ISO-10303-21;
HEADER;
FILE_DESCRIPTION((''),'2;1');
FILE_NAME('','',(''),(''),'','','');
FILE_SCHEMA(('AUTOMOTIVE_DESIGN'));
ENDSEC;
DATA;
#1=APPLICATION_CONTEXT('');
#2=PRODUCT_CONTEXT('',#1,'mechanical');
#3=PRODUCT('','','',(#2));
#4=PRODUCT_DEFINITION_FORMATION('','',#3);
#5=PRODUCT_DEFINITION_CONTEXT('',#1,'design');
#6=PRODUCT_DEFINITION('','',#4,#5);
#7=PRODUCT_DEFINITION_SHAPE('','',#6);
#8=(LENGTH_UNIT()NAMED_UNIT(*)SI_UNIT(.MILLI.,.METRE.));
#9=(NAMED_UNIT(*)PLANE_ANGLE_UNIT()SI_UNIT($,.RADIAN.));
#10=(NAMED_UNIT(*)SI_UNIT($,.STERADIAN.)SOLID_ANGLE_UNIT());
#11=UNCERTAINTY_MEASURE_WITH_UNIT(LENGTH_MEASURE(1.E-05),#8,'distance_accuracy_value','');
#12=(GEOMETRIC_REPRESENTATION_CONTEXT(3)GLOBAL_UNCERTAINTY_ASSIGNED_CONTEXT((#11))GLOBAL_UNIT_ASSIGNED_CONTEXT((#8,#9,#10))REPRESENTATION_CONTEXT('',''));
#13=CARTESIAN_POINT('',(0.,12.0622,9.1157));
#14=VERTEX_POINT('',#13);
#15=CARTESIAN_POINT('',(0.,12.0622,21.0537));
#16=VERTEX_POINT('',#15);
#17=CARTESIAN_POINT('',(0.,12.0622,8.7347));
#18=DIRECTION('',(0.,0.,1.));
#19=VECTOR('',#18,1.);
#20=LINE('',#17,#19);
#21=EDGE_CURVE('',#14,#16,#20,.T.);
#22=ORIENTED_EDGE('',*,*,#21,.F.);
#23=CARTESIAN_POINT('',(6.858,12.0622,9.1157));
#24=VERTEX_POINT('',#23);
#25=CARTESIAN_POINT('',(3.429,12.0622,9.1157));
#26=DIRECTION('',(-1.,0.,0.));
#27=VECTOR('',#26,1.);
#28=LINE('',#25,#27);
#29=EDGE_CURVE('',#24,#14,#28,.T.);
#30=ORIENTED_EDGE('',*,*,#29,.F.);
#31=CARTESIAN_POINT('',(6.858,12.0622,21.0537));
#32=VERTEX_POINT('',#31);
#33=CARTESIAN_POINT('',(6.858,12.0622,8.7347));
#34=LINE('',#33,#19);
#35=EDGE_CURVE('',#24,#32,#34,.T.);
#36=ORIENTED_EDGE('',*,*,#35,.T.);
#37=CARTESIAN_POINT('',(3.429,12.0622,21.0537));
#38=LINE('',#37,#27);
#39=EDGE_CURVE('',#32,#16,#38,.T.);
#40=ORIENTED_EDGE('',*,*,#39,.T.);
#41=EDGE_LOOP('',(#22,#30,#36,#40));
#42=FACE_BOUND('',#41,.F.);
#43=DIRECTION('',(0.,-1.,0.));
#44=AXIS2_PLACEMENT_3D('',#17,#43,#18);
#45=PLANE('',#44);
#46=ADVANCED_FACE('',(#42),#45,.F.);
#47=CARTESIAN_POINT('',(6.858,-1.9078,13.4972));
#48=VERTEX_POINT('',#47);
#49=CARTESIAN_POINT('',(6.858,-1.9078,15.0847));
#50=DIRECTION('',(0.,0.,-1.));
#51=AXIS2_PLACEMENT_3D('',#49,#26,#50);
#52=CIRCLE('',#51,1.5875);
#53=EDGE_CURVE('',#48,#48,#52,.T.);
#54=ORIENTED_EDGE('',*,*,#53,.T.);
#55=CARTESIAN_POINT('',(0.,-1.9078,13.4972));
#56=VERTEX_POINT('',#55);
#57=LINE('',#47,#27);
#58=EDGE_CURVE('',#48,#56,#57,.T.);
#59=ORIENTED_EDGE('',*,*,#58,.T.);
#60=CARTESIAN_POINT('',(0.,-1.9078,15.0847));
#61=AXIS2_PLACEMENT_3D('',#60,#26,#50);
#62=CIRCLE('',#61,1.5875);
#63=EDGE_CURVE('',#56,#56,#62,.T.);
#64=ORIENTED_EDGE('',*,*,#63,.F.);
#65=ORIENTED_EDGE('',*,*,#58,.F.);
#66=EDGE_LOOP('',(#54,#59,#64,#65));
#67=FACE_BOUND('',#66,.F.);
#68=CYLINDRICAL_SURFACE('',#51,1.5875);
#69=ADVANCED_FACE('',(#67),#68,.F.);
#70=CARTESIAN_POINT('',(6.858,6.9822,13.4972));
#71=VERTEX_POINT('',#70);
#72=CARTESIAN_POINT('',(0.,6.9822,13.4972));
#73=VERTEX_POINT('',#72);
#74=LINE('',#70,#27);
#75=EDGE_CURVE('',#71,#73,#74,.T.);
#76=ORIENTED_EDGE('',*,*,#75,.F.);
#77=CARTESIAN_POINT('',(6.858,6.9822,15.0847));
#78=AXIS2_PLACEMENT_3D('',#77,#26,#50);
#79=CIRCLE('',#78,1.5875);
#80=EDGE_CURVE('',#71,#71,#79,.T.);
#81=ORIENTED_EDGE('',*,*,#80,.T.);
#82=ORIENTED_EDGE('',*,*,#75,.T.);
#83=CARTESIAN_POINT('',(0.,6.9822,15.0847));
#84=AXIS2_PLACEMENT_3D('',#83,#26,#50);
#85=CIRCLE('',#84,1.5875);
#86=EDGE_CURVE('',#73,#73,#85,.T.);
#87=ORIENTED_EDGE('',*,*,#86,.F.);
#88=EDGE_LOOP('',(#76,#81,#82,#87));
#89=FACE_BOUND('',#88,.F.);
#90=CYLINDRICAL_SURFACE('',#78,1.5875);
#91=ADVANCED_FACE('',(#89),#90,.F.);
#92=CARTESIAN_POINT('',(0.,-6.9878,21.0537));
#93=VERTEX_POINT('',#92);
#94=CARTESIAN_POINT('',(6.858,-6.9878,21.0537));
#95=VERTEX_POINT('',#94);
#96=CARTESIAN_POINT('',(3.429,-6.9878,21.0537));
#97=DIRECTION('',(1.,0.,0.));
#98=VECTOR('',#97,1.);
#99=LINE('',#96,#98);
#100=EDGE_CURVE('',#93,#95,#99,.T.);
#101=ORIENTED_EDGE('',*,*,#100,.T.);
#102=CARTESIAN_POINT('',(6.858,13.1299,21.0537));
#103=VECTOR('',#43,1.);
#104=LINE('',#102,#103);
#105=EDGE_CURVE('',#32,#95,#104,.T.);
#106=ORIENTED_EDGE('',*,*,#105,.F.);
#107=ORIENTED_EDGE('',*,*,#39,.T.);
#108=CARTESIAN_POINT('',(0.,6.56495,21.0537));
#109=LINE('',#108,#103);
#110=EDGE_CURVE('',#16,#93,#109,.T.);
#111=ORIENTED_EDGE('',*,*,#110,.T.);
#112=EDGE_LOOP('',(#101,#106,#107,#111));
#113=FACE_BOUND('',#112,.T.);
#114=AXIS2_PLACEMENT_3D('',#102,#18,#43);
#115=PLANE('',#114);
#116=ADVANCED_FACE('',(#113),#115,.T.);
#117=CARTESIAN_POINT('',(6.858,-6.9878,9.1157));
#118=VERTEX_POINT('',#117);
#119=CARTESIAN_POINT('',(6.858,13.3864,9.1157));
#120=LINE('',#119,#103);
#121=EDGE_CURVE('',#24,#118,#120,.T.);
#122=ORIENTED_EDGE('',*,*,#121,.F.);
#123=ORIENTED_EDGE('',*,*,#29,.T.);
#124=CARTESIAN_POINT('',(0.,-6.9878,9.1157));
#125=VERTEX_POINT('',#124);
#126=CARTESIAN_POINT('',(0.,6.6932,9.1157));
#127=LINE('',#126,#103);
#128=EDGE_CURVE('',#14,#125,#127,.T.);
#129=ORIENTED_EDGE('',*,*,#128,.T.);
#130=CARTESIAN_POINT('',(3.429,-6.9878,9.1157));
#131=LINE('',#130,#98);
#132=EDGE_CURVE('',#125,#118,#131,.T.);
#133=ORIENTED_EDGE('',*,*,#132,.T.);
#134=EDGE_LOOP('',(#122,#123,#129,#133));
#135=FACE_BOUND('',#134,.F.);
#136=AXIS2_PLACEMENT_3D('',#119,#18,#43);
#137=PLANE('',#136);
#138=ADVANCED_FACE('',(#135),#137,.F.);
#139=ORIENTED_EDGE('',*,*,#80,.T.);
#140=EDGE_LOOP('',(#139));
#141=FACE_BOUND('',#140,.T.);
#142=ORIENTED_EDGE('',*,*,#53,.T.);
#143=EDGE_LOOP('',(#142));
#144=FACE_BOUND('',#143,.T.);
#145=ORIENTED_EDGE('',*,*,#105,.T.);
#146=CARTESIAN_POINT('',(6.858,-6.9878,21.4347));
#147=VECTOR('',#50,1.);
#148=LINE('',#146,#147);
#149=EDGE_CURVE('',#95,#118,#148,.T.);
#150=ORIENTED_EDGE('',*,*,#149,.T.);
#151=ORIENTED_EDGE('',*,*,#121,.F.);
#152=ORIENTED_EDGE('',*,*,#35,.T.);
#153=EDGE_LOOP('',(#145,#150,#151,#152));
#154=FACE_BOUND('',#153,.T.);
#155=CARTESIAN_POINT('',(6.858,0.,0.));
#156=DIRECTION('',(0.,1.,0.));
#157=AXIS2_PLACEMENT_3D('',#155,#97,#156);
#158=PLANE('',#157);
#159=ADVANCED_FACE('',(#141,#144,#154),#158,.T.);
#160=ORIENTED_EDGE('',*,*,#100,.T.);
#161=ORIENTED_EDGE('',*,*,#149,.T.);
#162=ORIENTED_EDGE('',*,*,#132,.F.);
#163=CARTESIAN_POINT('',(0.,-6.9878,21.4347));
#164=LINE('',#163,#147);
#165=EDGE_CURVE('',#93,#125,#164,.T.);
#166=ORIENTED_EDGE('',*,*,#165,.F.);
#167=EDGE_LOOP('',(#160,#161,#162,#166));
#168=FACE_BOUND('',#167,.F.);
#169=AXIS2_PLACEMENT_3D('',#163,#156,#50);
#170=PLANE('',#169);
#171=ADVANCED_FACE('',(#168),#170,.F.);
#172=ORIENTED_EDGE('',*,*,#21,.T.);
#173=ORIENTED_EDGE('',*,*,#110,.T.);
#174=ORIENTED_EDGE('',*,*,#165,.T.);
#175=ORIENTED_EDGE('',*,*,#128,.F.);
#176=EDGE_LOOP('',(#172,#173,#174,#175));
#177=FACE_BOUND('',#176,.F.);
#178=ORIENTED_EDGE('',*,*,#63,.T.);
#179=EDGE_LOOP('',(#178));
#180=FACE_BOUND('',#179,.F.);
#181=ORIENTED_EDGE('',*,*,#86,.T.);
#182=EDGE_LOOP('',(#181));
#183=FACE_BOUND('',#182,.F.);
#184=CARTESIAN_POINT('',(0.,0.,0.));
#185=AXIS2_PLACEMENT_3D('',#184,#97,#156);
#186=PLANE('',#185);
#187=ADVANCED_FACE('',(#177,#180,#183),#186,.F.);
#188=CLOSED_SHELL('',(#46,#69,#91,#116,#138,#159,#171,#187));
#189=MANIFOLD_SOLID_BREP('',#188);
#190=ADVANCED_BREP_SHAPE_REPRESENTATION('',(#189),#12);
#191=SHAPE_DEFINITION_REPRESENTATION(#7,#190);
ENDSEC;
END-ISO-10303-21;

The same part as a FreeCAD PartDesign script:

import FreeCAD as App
import Part
import Sketcher
from FreeCAD import Vector
Q = App.Units.Quantity


def add_polygon(sketch, points):
    """Adds a closed chain of lines whose ends are joined by coincident constraints."""
    first, n = sketch.GeometryCount, len(points)
    for a, b in zip(points, points[1:] + points[:1]):
        sketch.addGeometry(Part.LineSegment(App.Vector(*a, 0), App.Vector(*b, 0)), False)
    for i in range(n):
        sketch.addConstraint(Sketcher.Constraint("Coincident", first + i, 2, first + (i + 1) % n, 1))

doc = App.newDocument("Part")
body = doc.addObject("PartDesign::Body", "Body")

# Sketch on YZ plane
sketch1 = body.newObject("Sketcher::SketchObject", "Sketch")
sketch1.AttachmentSupport = (doc.getObject("YZ_Plane"), [""])
sketch1.MapMode = "FlatFace"
add_polygon(sketch1, [(12, 9), (12, 21), (-7, 21), (-7, 9)])  # lines 0-3
sketch1.addConstraint([
    Sketcher.Constraint("Vertical", 0),
    Sketcher.Constraint("Horizontal", 1),
    Sketcher.Constraint("Vertical", 2),
    Sketcher.Constraint("Horizontal", 3),
    Sketcher.Constraint("DistanceY", 0, 1, 0, 2, Q("0.5 in")),
    Sketcher.Constraint("DistanceX", 1, 2, 1, 1, Q("0.75 in")),
    Sketcher.Constraint("DistanceX", -1, 1, 0, 2, Q("0.4749 in")),
    Sketcher.Constraint("DistanceY", -1, 1, 0, 2, 21.4347),
])
pad1 = body.newObject("PartDesign::Pad", "Pad")
pad1.Profile = sketch1
pad1.Length = Q("0.27 in")

# Sketch on YZ plane
sketch2 = body.newObject("Sketcher::SketchObject", "Sketch001")
sketch2.AttachmentSupport = (doc.getObject("YZ_Plane"), [""])
sketch2.MapMode = "FlatFace"
sketch2.AttachmentOffset = App.Placement(Vector(0, 0, 0.27 * 25.4), App.Rotation())
sketch2.addGeometry([
    Part.Circle(Vector(7, 15.1, 0), Vector(0, 0, 1), 1.6),
    Part.Circle(Vector(-1.9, 15.1, 0), Vector(0, 0, 1), 1.6),
], False)
sketch2.addConstraint([
    Sketcher.Constraint("Equal", 0, 1),
    Sketcher.Constraint("Horizontal", 0, 3, 1, 3),
    Sketcher.Constraint("Diameter", 0, Q("0.125 in")),
    Sketcher.Constraint("DistanceX", 1, 3, 0, 3, Q("0.35 in")),
    Sketcher.Constraint("DistanceX", -1, 1, 0, 3, Q("0.2749 in")),
    Sketcher.Constraint("DistanceY", -1, 1, 0, 3, 15.0847),
])
doc.recompute()
hole = body.newObject("PartDesign::Hole", "Hole")
hole.Profile = sketch2
hole.ThreadType = "None"
hole.Diameter = Q("0.125 in")
hole.DepthType = "ThroughAll"

# Sketch on YZ plane
sketch3 = body.newObject("Sketcher::SketchObject", "Sketch002")
sketch3.AttachmentSupport = (doc.getObject("YZ_Plane"), [""])
sketch3.MapMode = "FlatFace"
sketch3.AttachmentOffset = App.Placement(Vector(0, 0, 0.27 * 25.4), App.Rotation())
add_polygon(sketch3, [(13.1, 21.1), (13.1, 24), (-8, 24), (-8, 21.1)])  # lines 0-3
add_polygon(sketch3, [(-8.4, 7.9), (13.4, 7.9), (13.4, 9.1), (-8.4, 9.1)])  # lines 4-7
sketch3.addConstraint([
    Sketcher.Constraint("Vertical", 0),
    Sketcher.Constraint("Horizontal", 1),
    Sketcher.Constraint("Vertical", 2),
    Sketcher.Constraint("Horizontal", 3),
    Sketcher.Constraint("Horizontal", 4),
    Sketcher.Constraint("Vertical", 5),
    Sketcher.Constraint("Horizontal", 6),
    Sketcher.Constraint("Vertical", 7),
    Sketcher.Constraint("DistanceY", 5, 2, 3, 2, Q("0.47 in")),
    Sketcher.Constraint("DistanceX", 1, 2, 1, 1, 21.1617),
    Sketcher.Constraint("DistanceX", 4, 1, 4, 2, 21.739),
    Sketcher.Constraint("DistanceY", 0, 1, 0, 2, 2.9148),
    Sketcher.Constraint("DistanceY", 5, 1, 5, 2, 1.2134),
    Sketcher.Constraint("DistanceX", 3, 2, 4, 2, Q("0.0101 in")),
    Sketcher.Constraint("DistanceX", -1, 1, 0, 2, 13.13),
    Sketcher.Constraint("DistanceY", -1, 1, 0, 2, 23.9685),
])
pocket1 = body.newObject("PartDesign::Pocket", "Pocket")
pocket1.Profile = sketch3
pocket1.Length = Q("1 in")

doc.recompute()
